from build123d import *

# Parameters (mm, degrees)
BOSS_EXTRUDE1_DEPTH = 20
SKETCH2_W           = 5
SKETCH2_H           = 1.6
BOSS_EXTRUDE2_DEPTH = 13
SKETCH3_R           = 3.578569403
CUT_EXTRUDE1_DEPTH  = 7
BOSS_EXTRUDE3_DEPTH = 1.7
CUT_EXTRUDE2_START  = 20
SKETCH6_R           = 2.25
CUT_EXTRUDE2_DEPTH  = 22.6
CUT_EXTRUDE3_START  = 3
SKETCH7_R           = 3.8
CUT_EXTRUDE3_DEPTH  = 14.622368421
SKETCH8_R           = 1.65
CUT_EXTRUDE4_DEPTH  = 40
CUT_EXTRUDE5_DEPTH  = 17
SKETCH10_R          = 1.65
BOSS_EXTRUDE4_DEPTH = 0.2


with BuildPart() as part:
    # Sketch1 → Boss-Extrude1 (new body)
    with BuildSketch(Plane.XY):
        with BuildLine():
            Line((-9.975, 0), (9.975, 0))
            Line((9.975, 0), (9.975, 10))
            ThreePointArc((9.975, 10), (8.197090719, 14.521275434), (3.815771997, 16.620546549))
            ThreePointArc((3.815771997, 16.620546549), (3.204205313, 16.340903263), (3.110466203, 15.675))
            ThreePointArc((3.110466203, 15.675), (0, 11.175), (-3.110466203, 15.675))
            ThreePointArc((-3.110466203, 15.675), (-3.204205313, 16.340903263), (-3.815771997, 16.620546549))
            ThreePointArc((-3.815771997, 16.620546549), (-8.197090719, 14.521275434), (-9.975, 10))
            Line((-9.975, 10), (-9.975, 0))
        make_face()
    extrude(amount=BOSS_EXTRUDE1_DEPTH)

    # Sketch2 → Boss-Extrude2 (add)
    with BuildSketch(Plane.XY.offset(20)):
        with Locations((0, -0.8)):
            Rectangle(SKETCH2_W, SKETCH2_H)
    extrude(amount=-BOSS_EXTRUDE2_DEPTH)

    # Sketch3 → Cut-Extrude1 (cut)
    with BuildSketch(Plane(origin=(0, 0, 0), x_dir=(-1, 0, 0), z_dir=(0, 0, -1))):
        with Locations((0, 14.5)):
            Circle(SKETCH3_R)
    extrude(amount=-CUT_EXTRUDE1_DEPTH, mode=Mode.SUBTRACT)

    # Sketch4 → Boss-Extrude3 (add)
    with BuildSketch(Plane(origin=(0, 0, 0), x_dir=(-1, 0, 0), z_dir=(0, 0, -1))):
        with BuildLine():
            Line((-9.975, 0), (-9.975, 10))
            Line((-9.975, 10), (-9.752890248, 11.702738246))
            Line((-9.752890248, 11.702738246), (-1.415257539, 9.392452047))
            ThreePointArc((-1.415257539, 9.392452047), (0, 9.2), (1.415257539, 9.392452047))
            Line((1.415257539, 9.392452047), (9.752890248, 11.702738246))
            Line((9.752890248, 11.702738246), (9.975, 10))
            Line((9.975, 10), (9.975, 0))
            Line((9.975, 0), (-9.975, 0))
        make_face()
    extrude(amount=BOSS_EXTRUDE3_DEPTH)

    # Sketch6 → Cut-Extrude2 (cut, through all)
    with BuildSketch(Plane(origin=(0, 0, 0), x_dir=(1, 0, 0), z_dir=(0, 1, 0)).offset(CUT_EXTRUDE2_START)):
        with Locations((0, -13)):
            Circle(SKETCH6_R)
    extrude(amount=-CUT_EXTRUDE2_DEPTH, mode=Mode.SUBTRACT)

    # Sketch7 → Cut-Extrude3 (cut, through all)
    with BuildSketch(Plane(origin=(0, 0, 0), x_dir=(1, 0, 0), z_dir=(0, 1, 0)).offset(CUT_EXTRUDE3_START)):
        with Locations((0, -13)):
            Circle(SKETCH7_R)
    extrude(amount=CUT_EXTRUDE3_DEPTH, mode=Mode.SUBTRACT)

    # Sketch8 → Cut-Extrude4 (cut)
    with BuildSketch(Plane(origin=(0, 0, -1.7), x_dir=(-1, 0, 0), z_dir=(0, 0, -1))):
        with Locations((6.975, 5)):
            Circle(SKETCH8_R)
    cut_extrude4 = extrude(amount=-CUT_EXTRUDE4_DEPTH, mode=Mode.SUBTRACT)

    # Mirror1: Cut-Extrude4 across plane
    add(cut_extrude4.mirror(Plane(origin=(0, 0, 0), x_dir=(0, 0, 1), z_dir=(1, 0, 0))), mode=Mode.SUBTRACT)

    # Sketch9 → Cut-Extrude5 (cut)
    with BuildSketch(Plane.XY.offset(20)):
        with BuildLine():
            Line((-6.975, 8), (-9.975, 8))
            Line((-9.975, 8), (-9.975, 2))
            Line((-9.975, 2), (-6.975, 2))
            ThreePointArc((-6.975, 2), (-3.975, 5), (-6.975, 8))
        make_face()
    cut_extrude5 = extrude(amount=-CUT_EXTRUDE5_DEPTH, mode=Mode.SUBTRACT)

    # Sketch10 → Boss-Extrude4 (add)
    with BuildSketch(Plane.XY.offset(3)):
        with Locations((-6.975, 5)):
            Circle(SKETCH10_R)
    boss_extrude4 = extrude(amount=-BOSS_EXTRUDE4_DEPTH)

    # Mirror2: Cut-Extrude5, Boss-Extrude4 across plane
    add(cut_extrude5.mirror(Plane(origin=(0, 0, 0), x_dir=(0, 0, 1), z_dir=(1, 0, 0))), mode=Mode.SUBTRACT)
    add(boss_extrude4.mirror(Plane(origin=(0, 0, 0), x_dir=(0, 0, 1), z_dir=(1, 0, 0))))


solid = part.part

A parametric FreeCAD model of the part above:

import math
import FreeCAD as App
import Part
import Sketcher


def add_polygon(sketch, points):
    """Adds a closed chain of lines whose ends are joined by coincident constraints."""
    first, n = sketch.GeometryCount, len(points)
    for a, b in zip(points, points[1:] + points[:1]):
        sketch.addGeometry(Part.LineSegment(App.Vector(*a, 0), App.Vector(*b, 0)), False)
    for i in range(n):
        sketch.addConstraint(Sketcher.Constraint("Coincident", first + i, 2, first + (i + 1) % n, 1))

doc = App.newDocument("Part")
body = doc.addObject("PartDesign::Body", "Body")

# Sketch on XY plane
sketch1 = body.newObject("Sketcher::SketchObject", "Sketch")
sketch1.AttachmentSupport = (doc.getObject("XY_Plane"), [""])
sketch1.MapMode = "FlatFace"
sketch1.addGeometry([
    Part.LineSegment(App.Vector(-10, 0, 0), App.Vector(10, 0, 0)),  # 0
    Part.LineSegment(App.Vector(10, 0, 0), App.Vector(10, 10, 0)),  # 1
    Part.ArcOfCircle(Part.Circle(App.Vector(3.3, 10, 0), App.Vector(0, 0, 1), 6.6), math.radians(0), math.radians(86)),  # 2
    Part.ArcOfCircle(Part.Circle(App.Vector(3.8, 15.9, 0), App.Vector(0, 0, 1), 0.7), math.radians(86), math.radians(201)),  # 3
    Part.ArcOfCircle(Part.Circle(App.Vector(0, 14.5, 0), App.Vector(0, 0, 1), 3.3), math.radians(159), math.radians(381)),  # 4
    Part.ArcOfCircle(Part.Circle(App.Vector(-3.8, 15.9, 0), App.Vector(0, 0, 1), 0.7), math.radians(-21), math.radians(94)),  # 5
    Part.ArcOfCircle(Part.Circle(App.Vector(-3.3, 10, 0), App.Vector(0, 0, 1), 6.6), math.radians(94), math.radians(180)),  # 6
    Part.LineSegment(App.Vector(-10, 10, 0), App.Vector(-10, 0, 0)),  # 7
], False)
sketch1.addConstraint([
    Sketcher.Constraint("Coincident", 0, 2, 1, 1),
    Sketcher.Constraint("Tangent", 1, 2, 2, 1),
    Sketcher.Constraint("Tangent", 2, 2, 3, 1),
    Sketcher.Constraint("Tangent", 3, 2, 4, 2),
    Sketcher.Constraint("Tangent", 4, 1, 5, 1),
    Sketcher.Constraint("Tangent", 5, 2, 6, 1),
    Sketcher.Constraint("Tangent", 6, 2, 7, 1),
    Sketcher.Constraint("Coincident", 7, 2, 0, 1),
    Sketcher.Constraint("Horizontal", 0),
    Sketcher.Constraint("Vertical", 1),
    Sketcher.Constraint("Vertical", 7),
    Sketcher.Constraint("Equal", 3, 5),
    Sketcher.Constraint("Equal", 2, 6),
    Sketcher.Constraint("Symmetric", 0, 2, 7, 2, -1, 1),
    Sketcher.Constraint("Symmetric", 3, 3, 5, 3, -2),
    Sketcher.Constraint("Radius", 3, 0.7),
    Sketcher.Constraint("DistanceY", 1, 1, 1, 2, 10.0),
    Sketcher.Constraint("Radius", 4, 3.325),
    Sketcher.Constraint("DistanceX", 0, 1, 0, 2, 19.95),
    Sketcher.Constraint("DistanceY", -1, 1, 4, 3, 14.5),
    Sketcher.Constraint("DistanceY", -1, 1, 3, 2, 15.675),
])
pad1 = body.newObject("PartDesign::Pad", "Pad")
pad1.Profile = sketch1
pad1.Length = 20

# Sketch on XY plane
sketch2 = body.newObject("Sketcher::SketchObject", "Sketch001")
sketch2.AttachmentSupport = (doc.getObject("XY_Plane"), [""])
sketch2.MapMode = "FlatFace"
sketch2.AttachmentOffset = App.Placement(App.Vector(0, 0, 20), App.Rotation())
add_polygon(sketch2, [(-2.5, 0), (-2.5, -1.6), (2.5, -1.6), (2.5, 0)])  # lines 0-3
sketch2.addConstraint([
    Sketcher.Constraint("Vertical", 0),
    Sketcher.Constraint("Horizontal", 1),
    Sketcher.Constraint("Vertical", 2),
    Sketcher.Constraint("Horizontal", 3),
    Sketcher.Constraint("Symmetric", 2, 2, 3, 2, -1, 1),
    Sketcher.Constraint("DistanceX", 1, 1, 1, 2, 5.0),
    Sketcher.Constraint("DistanceY", 0, 2, 0, 1, 1.6),
])
pad2 = body.newObject("PartDesign::Pad", "Pad001")
pad2.Profile = sketch2
pad2.Length = 13
pad2.Reversed = True

# Sketch on XY plane
sketch3 = body.newObject("Sketcher::SketchObject", "Sketch002")
sketch3.AttachmentSupport = (doc.getObject("XY_Plane"), [""])
sketch3.MapMode = "FlatFace"
sketch3.addGeometry(Part.Circle(App.Vector(0, 14.5, 0), App.Vector(0, 0, 1), 3.6), False)
sketch3.addConstraint([
    Sketcher.Constraint("PointOnObject", 0, 3, -2),
    Sketcher.Constraint("DistanceY", -1, 1, 0, 3, 14.5),
    Sketcher.Constraint("Diameter", 0, 7.157139),
])
pocket1 = body.newObject("PartDesign::Pocket", "Pocket")
pocket1.Profile = sketch3
pocket1.Length = 7
pocket1.Reversed = True

# Sketch on XY plane
sketch4 = body.newObject("Sketcher::SketchObject", "Sketch003")
sketch4.AttachmentSupport = (doc.getObject("XY_Plane"), [""])
sketch4.MapMode = "FlatFace"
sketch4.addGeometry([
    Part.LineSegment(App.Vector(10, 10, 0), App.Vector(10, 0, 0)),  # 0
    Part.LineSegment(App.Vector(10, 0, 0), App.Vector(-10, 0, 0)),  # 1
    Part.LineSegment(App.Vector(-10, 0, 0), App.Vector(-10, 10, 0)),  # 2
    Part.LineSegment(App.Vector(-10, 10, 0), App.Vector(-9.8, 11.7, 0)),  # 3
    Part.LineSegment(App.Vector(-9.8, 11.7, 0), App.Vector(-1.4, 9.4, 0)),  # 4
    Part.ArcOfCircle(Part.Circle(App.Vector(0, 14.5, 0), App.Vector(0, 0, 1), 5.3), math.radians(-105), math.radians(-75)),  # 5
    Part.LineSegment(App.Vector(1.4, 9.4, 0), App.Vector(9.8, 11.7, 0)),  # 6
    Part.LineSegment(App.Vector(9.8, 11.7, 0), App.Vector(10, 10, 0)),  # 7
], False)
sketch4.addConstraint([
    Sketcher.Constraint("Coincident", 0, 2, 1, 1),
    Sketcher.Constraint("Coincident", 1, 2, 2, 1),
    Sketcher.Constraint("Coincident", 2, 2, 3, 1),
    Sketcher.Constraint("Coincident", 3, 2, 4, 1),
    Sketcher.Constraint("Tangent", 4, 2, 5, 1),
    Sketcher.Constraint("Tangent", 5, 2, 6, 1),
    Sketcher.Constraint("Coincident", 6, 2, 7, 1),
    Sketcher.Constraint("Coincident", 7, 2, 0, 1),
    Sketcher.Constraint("Vertical", 0),
    Sketcher.Constraint("Horizontal", 1),
    Sketcher.Constraint("Vertical", 2),
    Sketcher.Constraint("Symmetric", 0, 2, 1, 2, -1, 1),
    Sketcher.Constraint("Symmetric", 4, 2, 5, 2, -2),
    Sketcher.Constraint("Horizontal", 3, 2, 6, 2),
    Sketcher.Constraint("Horizontal", 2, 2, 7, 2),
    Sketcher.Constraint("Radius", 5, 5.3),
    Sketcher.Constraint("DistanceY", 0, 2, 0, 1, 10.0),
    Sketcher.Constraint("DistanceX", 1, 2, 1, 1, 19.95),
    Sketcher.Constraint("DistanceY", -1, 1, 5, 3, 14.5),
    Sketcher.Constraint("DistanceX", 3, 2, -1, 1, 9.75289),
    Sketcher.Constraint("DistanceY", -1, 1, 3, 2, 11.702738),
])
pad3 = body.newObject("PartDesign::Pad", "Pad002")
pad3.Profile = sketch4
pad3.Length = 1.7
pad3.Reversed = True

# Sketch on XZ plane
sketch5 = body.newObject("Sketcher::SketchObject", "Sketch004")
sketch5.AttachmentSupport = (doc.getObject("XZ_Plane"), [""])
sketch5.MapMode = "FlatFace"
sketch5.AttachmentOffset = App.Placement(App.Vector(0, 0, -20), App.Rotation())
sketch5.addGeometry(Part.Circle(App.Vector(0, 13, 0), App.Vector(0, 0, 1), 2.2), False)
sketch5.addConstraint([
    Sketcher.Constraint("PointOnObject", 0, 3, -2),
    Sketcher.Constraint("Diameter", 0, 4.5),
    Sketcher.Constraint("DistanceY", -1, 1, 0, 3, 13.0),
])
pocket2 = body.newObject("PartDesign::Pocket", "Pocket001")
pocket2.Profile = sketch5
pocket2.Type = "ThroughAll"
pocket2.Reversed = True

# Sketch on XZ plane
sketch6 = body.newObject("Sketcher::SketchObject", "Sketch005")
sketch6.AttachmentSupport = (doc.getObject("XZ_Plane"), [""])
sketch6.MapMode = "FlatFace"
sketch6.AttachmentOffset = App.Placement(App.Vector(0, 0, -3), App.Rotation())
sketch6.addGeometry(Part.Circle(App.Vector(0, 13, 0), App.Vector(0, 0, 1), 3.8), False)
sketch6.addConstraint([
    Sketcher.Constraint("PointOnObject", 0, 3, -2),
    Sketcher.Constraint("Diameter", 0, 7.6),
    Sketcher.Constraint("DistanceY", -1, 1, 0, 3, 13.0),
])
pocket3 = body.newObject("PartDesign::Pocket", "Pocket002")
pocket3.Profile = sketch6
pocket3.Type = "ThroughAll"

# Sketch on XY plane
sketch7 = body.newObject("Sketcher::SketchObject", "Sketch006")
sketch7.AttachmentSupport = (doc.getObject("XY_Plane"), [""])
sketch7.MapMode = "FlatFace"
sketch7.AttachmentOffset = App.Placement(App.Vector(0, 0, -1.7), App.Rotation())
sketch7.addGeometry(Part.Circle(App.Vector(-7, 5, 0), App.Vector(0, 0, 1), 1.6), False)
sketch7.addConstraint([
    Sketcher.Constraint("Diameter", 0, 3.3),
    Sketcher.Constraint("DistanceY", -1, 1, 0, 3, 5.0),
    Sketcher.Constraint("DistanceX", 0, 3, -1, 1, 6.975),
])
pocket4 = body.newObject("PartDesign::Pocket", "Pocket003")
pocket4.Profile = sketch7
pocket4.Length = 40
pocket4.Reversed = True
doc.recompute()

mirrored = body.newObject("PartDesign::Mirrored", "Mirrored")
mirrored.Originals = [pocket4]
mirrored.MirrorPlane = (doc.getObject("YZ_Plane"), [""])
body.Tip = mirrored

# Sketch on XY plane
sketch8 = body.newObject("Sketcher::SketchObject", "Sketch007")
sketch8.AttachmentSupport = (doc.getObject("XY_Plane"), [""])
sketch8.MapMode = "FlatFace"
sketch8.AttachmentOffset = App.Placement(App.Vector(0, 0, 20), App.Rotation())
sketch8.addGeometry([
    Part.LineSegment(App.Vector(-7, 8, 0), App.Vector(-10, 8, 0)),
    Part.LineSegment(App.Vector(-10, 8, 0), App.Vector(-10, 2, 0)),
    Part.LineSegment(App.Vector(-10, 2, 0), App.Vector(-7, 2, 0)),
    Part.ArcOfCircle(Part.Circle(App.Vector(-7, 5, 0), App.Vector(0, 0, 1), 3), math.radians(-90), math.radians(90)),
], False)
sketch8.addConstraint([
    Sketcher.Constraint("Coincident", 0, 2, 1, 1),
    Sketcher.Constraint("Coincident", 1, 2, 2, 1),
    Sketcher.Constraint("Tangent", 2, 2, 3, 1),
    Sketcher.Constraint("Tangent", 3, 2, 0, 1),
    Sketcher.Constraint("Horizontal", 0),
    Sketcher.Constraint("Vertical", 1),
    Sketcher.Constraint("Horizontal", 2),
    Sketcher.Constraint("Radius", 3, 3.0),
    Sketcher.Constraint("DistanceX", 0, 2, 0, 1, 3.0),
    Sketcher.Constraint("DistanceY", -1, 1, 3, 3, 5.0),
    Sketcher.Constraint("DistanceX", 3, 3, -1, 1, 6.975),
])
pocket5 = body.newObject("PartDesign::Pocket", "Pocket004")
pocket5.Profile = sketch8
pocket5.Length = 17

# Sketch on XY plane
sketch9 = body.newObject("Sketcher::SketchObject", "Sketch008")
sketch9.AttachmentSupport = (doc.getObject("XY_Plane"), [""])
sketch9.MapMode = "FlatFace"
sketch9.AttachmentOffset = App.Placement(App.Vector(0, 0, 3), App.Rotation())
sketch9.addGeometry(Part.Circle(App.Vector(-7, 5, 0), App.Vector(0, 0, 1), 1.6), False)
sketch9.addConstraint([
    Sketcher.Constraint("Diameter", 0, 3.3),
    Sketcher.Constraint("DistanceY", -1, 1, 0, 3, 5.0),
    Sketcher.Constraint("DistanceX", 0, 3, -1, 1, 6.975),
])
pad4 = body.newObject("PartDesign::Pad", "Pad003")
pad4.Profile = sketch9
pad4.Length = 0.2
pad4.Reversed = True
doc.recompute()

mirrored2 = body.newObject("PartDesign::Mirrored", "Mirrored001")
mirrored2.Originals = [pocket5, pad4]
mirrored2.MirrorPlane = (doc.getObject("YZ_Plane"), [""])
body.Tip = mirrored2

doc.recompute()
